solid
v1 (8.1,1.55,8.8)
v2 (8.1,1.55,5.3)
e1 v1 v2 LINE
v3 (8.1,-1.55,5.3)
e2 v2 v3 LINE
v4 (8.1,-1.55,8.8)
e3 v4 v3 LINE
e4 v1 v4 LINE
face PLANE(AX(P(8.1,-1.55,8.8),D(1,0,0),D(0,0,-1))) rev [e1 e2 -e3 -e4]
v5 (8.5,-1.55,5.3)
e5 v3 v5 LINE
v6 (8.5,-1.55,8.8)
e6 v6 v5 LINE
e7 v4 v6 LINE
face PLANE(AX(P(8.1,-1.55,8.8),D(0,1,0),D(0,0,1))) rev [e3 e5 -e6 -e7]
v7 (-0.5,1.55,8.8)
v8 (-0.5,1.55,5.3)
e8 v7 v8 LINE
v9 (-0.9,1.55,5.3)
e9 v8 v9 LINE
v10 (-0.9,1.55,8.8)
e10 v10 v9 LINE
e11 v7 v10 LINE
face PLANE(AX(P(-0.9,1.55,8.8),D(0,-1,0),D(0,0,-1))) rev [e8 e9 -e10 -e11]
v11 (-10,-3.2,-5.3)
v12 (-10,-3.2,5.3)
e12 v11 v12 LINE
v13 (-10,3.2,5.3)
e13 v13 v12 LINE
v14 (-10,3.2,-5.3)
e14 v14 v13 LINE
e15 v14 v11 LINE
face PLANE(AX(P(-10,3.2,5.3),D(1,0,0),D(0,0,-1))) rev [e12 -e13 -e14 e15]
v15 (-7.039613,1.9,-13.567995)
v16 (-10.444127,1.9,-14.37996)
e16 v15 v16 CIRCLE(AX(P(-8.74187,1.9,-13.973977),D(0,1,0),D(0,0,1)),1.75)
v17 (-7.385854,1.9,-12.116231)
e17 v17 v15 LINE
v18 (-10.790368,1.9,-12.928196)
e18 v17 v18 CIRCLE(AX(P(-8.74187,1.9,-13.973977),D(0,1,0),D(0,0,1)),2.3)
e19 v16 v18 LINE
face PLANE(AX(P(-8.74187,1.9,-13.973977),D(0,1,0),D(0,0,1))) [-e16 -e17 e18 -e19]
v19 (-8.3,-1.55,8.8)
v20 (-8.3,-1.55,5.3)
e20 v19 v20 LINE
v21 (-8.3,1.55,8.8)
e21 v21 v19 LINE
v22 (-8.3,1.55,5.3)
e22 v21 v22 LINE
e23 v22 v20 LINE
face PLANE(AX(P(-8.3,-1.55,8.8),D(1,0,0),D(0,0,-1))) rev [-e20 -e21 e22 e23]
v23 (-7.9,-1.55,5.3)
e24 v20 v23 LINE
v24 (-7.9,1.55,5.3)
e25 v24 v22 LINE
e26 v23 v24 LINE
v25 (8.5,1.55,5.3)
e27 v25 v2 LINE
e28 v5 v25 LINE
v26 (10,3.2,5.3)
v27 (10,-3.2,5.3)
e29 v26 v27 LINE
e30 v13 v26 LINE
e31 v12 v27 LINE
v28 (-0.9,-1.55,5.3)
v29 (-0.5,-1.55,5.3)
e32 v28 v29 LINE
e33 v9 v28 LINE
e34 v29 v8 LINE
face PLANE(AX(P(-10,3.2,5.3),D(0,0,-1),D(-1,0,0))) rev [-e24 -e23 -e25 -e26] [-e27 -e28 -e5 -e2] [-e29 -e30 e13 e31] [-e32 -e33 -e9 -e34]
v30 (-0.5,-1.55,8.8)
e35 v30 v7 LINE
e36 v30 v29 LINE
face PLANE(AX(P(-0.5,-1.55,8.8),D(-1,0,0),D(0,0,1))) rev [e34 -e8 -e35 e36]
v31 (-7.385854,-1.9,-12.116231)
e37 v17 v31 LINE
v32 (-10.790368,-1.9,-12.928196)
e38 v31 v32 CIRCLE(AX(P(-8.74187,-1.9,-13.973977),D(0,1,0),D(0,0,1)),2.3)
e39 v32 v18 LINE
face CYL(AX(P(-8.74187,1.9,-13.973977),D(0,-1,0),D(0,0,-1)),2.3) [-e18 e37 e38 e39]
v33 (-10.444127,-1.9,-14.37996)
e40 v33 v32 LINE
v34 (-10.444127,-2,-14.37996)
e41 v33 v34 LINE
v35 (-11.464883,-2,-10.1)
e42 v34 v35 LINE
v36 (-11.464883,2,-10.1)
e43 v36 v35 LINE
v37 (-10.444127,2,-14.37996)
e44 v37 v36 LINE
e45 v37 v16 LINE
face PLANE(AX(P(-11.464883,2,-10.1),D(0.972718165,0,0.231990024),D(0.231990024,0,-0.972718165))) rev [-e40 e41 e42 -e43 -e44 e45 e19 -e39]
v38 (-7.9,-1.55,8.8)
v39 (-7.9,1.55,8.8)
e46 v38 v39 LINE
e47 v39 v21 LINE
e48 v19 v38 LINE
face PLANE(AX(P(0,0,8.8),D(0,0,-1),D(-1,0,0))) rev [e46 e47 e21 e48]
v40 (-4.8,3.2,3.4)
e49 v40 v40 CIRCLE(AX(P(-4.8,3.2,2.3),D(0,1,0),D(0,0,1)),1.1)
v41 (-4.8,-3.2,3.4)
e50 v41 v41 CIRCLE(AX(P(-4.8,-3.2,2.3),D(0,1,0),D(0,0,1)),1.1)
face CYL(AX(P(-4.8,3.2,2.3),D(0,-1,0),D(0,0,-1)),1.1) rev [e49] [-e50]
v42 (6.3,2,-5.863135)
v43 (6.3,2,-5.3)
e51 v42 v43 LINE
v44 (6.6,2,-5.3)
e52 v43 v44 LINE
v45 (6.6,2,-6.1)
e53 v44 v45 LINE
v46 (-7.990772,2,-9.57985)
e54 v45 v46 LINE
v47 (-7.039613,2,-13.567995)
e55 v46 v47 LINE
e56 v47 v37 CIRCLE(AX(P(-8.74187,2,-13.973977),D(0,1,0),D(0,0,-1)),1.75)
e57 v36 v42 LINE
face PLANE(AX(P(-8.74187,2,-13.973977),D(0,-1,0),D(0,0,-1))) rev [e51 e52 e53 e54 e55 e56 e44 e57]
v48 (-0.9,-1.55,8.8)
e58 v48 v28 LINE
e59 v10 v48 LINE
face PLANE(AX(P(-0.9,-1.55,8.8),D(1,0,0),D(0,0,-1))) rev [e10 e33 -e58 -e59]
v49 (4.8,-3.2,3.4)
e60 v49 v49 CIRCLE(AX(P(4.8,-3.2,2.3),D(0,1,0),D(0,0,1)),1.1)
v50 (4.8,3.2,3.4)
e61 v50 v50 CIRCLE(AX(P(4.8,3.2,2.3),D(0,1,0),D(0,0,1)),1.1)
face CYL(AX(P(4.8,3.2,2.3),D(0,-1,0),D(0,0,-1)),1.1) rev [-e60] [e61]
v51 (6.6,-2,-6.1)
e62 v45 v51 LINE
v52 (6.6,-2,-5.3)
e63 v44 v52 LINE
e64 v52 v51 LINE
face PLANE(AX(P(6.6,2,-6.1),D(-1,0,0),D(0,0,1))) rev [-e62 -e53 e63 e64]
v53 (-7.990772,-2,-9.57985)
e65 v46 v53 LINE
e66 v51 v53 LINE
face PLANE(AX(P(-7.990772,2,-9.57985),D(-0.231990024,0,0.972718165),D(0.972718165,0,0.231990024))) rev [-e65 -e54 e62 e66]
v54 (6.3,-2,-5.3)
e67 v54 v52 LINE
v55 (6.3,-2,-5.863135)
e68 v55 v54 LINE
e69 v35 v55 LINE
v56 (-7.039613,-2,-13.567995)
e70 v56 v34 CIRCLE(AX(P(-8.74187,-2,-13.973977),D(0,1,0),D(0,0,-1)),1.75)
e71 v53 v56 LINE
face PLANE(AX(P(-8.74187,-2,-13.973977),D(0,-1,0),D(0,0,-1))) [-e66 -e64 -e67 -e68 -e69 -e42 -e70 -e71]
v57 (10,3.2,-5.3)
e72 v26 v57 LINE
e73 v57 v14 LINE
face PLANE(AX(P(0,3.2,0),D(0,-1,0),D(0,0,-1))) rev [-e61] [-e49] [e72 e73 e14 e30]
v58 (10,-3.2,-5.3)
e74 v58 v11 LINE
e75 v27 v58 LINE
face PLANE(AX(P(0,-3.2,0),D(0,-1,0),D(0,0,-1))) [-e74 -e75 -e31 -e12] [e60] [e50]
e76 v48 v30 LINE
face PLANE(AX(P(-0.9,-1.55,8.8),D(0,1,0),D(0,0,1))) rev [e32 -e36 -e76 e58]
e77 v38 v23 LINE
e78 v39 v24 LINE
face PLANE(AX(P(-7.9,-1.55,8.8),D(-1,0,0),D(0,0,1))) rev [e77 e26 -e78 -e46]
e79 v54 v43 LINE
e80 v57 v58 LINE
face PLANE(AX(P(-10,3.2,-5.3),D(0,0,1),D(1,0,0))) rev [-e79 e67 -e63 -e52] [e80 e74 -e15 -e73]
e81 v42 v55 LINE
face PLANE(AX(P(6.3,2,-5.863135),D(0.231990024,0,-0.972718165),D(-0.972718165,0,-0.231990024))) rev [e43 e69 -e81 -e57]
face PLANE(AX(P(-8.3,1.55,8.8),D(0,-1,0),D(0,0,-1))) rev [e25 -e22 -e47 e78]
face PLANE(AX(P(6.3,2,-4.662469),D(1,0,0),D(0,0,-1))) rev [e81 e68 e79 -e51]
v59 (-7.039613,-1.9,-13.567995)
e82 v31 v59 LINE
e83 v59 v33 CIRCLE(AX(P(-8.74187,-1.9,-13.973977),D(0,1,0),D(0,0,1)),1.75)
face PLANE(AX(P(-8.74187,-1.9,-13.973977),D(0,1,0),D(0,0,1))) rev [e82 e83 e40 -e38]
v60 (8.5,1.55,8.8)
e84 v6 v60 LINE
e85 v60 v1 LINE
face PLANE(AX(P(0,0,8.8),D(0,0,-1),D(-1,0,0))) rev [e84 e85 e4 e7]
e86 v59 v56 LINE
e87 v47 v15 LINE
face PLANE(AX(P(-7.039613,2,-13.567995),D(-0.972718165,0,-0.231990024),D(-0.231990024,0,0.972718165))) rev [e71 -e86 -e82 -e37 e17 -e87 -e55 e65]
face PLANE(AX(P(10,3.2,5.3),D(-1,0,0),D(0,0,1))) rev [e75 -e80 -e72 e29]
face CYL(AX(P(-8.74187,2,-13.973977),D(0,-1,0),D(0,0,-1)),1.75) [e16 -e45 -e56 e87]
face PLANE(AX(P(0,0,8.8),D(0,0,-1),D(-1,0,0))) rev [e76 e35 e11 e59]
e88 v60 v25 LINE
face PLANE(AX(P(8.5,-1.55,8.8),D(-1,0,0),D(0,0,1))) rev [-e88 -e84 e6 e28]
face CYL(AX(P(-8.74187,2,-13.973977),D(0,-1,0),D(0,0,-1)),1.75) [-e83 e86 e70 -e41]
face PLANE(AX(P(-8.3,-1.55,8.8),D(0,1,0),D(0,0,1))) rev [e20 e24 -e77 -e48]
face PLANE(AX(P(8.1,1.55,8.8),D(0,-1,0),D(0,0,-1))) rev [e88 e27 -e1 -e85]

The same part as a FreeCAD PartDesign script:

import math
import FreeCAD as App
import Part
import Sketcher

V = App.Vector
Q = App.Units.Quantity

doc = App.newDocument("Part")
params = doc.addObject("Spreadsheet::Sheet", "Params")
for row, (alias, value) in enumerate([
    ("sketch1_diameter", "2.2 mm"),
    ("sketch1_width", "20 mm"),
    ("sketch1_height", "10.6 mm"),
    ("pad1_length", "6.4 mm"),
    ("sketch2_width", "0.4 mm"),
    ("sketch2_height", "3.1 mm"),
    ("pad2_length", "3.5 mm"),
    ("sketch3_radius", "1.75 mm"),
    ("sketch3_length", "15 mm"),
    ("sketch3_width", "0.3 mm"),
    ("sketch3_length2", "4.1 mm"),
    ("sketch3_length3", "4.4 mm"),
    ("pad3_length", "4 mm"),
    ("sketch4_diameter", "4.6 mm"),
    ("pad4_length", "3.8 mm"),
], start=1):
    params.set(f"A{row}", alias)
    params.set(f"B{row}", "=" + value)
    params.setAlias(f"B{row}", alias)

body = doc.addObject("PartDesign::Body", "Body")

sketch1 = body.newObject("Sketcher::SketchObject", "Sketch")
sketch1.AttachmentSupport = (doc.getObject("XZ_Plane"), [""])
sketch1.MapMode = "FlatFace"
sketch1.addGeometry([
    Part.LineSegment(V(-10, -5.3, 0), V(-10, 5.3, 0)),
    Part.LineSegment(V(-10, 5.3, 0), V(10, 5.3, 0)),
    Part.LineSegment(V(10, 5.3, 0), V(10, -5.3, 0)),
    Part.LineSegment(V(10, -5.3, 0), V(-10, -5.3, 0)),
    Part.Circle(V(-4.8, 2.3, 0), V(0, 0, 1), 1.1),
    Part.Circle(V(4.8, 2.3, 0), V(0, 0, 1), 1.1),
], False)
sketch1.addConstraint([
    Sketcher.Constraint("Coincident", 0, 2, 1, 1),
    Sketcher.Constraint("Coincident", 1, 2, 2, 1),
    Sketcher.Constraint("Coincident", 2, 2, 3, 1),
    Sketcher.Constraint("Coincident", 3, 2, 0, 1),
    Sketcher.Constraint("Vertical", 0),
    Sketcher.Constraint("Horizontal", 1),
    Sketcher.Constraint("Vertical", 2),
    Sketcher.Constraint("Horizontal", 3),
    Sketcher.Constraint("Equal", 4, 5),
    Sketcher.Constraint("Symmetric", 0, 2, 2, 2, -1, 1),
    Sketcher.Constraint("Symmetric", 4, 3, 5, 3, -2),
    Sketcher.Constraint("Diameter", 4, Q("2.2 mm")),
    Sketcher.Constraint("DistanceX", 1, 1, 1, 2, Q("20 mm")),
    Sketcher.Constraint("DistanceY", 0, 1, 0, 2, Q("10.6 mm")),
    Sketcher.Constraint("DistanceY", 4, 3, 0, 2, Q("3 mm")),
    Sketcher.Constraint("DistanceX", 4, 3, -1, 1, Q("4.8 mm")),
])
sketch1.setExpression("Constraints[11]", "Params.sketch1_diameter")
sketch1.setExpression("Constraints[12]", "Params.sketch1_width")
sketch1.setExpression("Constraints[13]", "Params.sketch1_height")
pad1 = body.newObject("PartDesign::Pad", "Pad")
pad1.Profile = sketch1
pad1.setExpression("Length", "Params.pad1_length")
pad1.Midplane = True

sketch2 = body.newObject("Sketcher::SketchObject", "Sketch001")
sketch2.AttachmentSupport = (doc.getObject("XY_Plane"), [""])
sketch2.MapMode = "FlatFace"
sketch2.AttachmentOffset = App.Placement(V(0, 0, 5.3), App.Rotation())
sketch2.addGeometry([
    Part.LineSegment(V(-8.3, 1.55, 0), V(-8.3, -1.55, 0)),
    Part.LineSegment(V(-8.3, -1.55, 0), V(-7.9, -1.55, 0)),
    Part.LineSegment(V(-7.9, -1.55, 0), V(-7.9, 1.55, 0)),
    Part.LineSegment(V(-7.9, 1.55, 0), V(-8.3, 1.55, 0)),
    Part.LineSegment(V(-0.9, 1.55, 0), V(-0.9, -1.55, 0)),
    Part.LineSegment(V(-0.9, -1.55, 0), V(-0.5, -1.55, 0)),
    Part.LineSegment(V(-0.5, -1.55, 0), V(-0.5, 1.55, 0)),
    Part.LineSegment(V(-0.5, 1.55, 0), V(-0.9, 1.55, 0)),
    Part.LineSegment(V(8.1, 1.55, 0), V(8.1, -1.55, 0)),
    Part.LineSegment(V(8.1, -1.55, 0), V(8.5, -1.55, 0)),
    Part.LineSegment(V(8.5, -1.55, 0), V(8.5, 1.55, 0)),
    Part.LineSegment(V(8.5, 1.55, 0), V(8.1, 1.55, 0)),
], False)
sketch2.addConstraint([
    Sketcher.Constraint("Coincident", 0, 2, 1, 1),
    Sketcher.Constraint("Coincident", 1, 2, 2, 1),
    Sketcher.Constraint("Coincident", 2, 2, 3, 1),
    Sketcher.Constraint("Coincident", 3, 2, 0, 1),
    Sketcher.Constraint("Coincident", 4, 2, 5, 1),
    Sketcher.Constraint("Coincident", 5, 2, 6, 1),
    Sketcher.Constraint("Coincident", 6, 2, 7, 1),
    Sketcher.Constraint("Coincident", 7, 2, 4, 1),
    Sketcher.Constraint("Coincident", 8, 2, 9, 1),
    Sketcher.Constraint("Coincident", 9, 2, 10, 1),
    Sketcher.Constraint("Coincident", 10, 2, 11, 1),
    Sketcher.Constraint("Coincident", 11, 2, 8, 1),
    Sketcher.Constraint("Vertical", 0),
    Sketcher.Constraint("Horizontal", 1),
    Sketcher.Constraint("Vertical", 2),
    Sketcher.Constraint("Horizontal", 3),
    Sketcher.Constraint("Vertical", 4),
    Sketcher.Constraint("Horizontal", 5),
    Sketcher.Constraint("Vertical", 6),
    Sketcher.Constraint("Horizontal", 7),
    Sketcher.Constraint("Vertical", 8),
    Sketcher.Constraint("Horizontal", 9),
    Sketcher.Constraint("Vertical", 10),
    Sketcher.Constraint("Horizontal", 11),
    Sketcher.Constraint("Horizontal", 1, 2, 4, 2),
    Sketcher.Constraint("Horizontal", 3, 2, 6, 2),
    Sketcher.Constraint("Horizontal", 5, 2, 8, 2),
    Sketcher.Constraint("Horizontal", 7, 2, 10, 2),
    Sketcher.Constraint("Equal", 3, 5),
    Sketcher.Constraint("Equal", 7, 9),
    Sketcher.Constraint("DistanceX", 1, 1, 1, 2, Q("0.4 mm")),
    Sketcher.Constraint("DistanceY", 0, 2, 0, 1, Q("3.1 mm")),
    Sketcher.Constraint("DistanceX", 1, 2, 4, 2, Q("7 mm")),
    Sketcher.Constraint("DistanceX", 4, 2, 8, 2, Q("9 mm")),
    Sketcher.Constraint("DistanceX", 0, 2, -1, 1, Q("8.3 mm")),
    Sketcher.Constraint("DistanceY", 0, 2, -1, 1, Q("1.55 mm")),
])
sketch2.setExpression("Constraints[30]", "Params.sketch2_width")
sketch2.setExpression("Constraints[31]", "Params.sketch2_height")
pad2 = body.newObject("PartDesign::Pad", "Pad001")
pad2.Profile = sketch2
pad2.setExpression("Length", "Params.pad2_length")

sketch3 = body.newObject("Sketcher::SketchObject", "Sketch002")
sketch3.AttachmentSupport = (doc.getObject("XZ_Plane"), [""])
sketch3.MapMode = "FlatFace"
sketch3.addGeometry([
    Part.LineSegment(V(6.3, -5.86, 0), V(6.3, -4.66, 0)),
    Part.LineSegment(V(6.3, -4.66, 0), V(6.6, -4.66, 0)),
    Part.LineSegment(V(6.6, -4.66, 0), V(6.6, -6.1, 0)),
    Part.LineSegment(V(6.6, -6.1, 0), V(-7.99, -9.58, 0)),
    Part.LineSegment(V(-7.99, -9.58, 0), V(-7.04, -13.57, 0)),
    Part.ArcOfCircle(Part.Circle(V(-8.74, -13.97, 0), V(0, 0, 1), 1.75), math.radians(-167), math.radians(13)),
    Part.LineSegment(V(-10.44, -14.38, 0), V(-11.46, -10.1, 0)),
    Part.LineSegment(V(-11.46, -10.1, 0), V(6.3, -5.86, 0)),
], False)
sketch3.addConstraint([
    Sketcher.Constraint("Coincident", 0, 2, 1, 1),
    Sketcher.Constraint("Coincident", 1, 2, 2, 1),
    Sketcher.Constraint("Coincident", 2, 2, 3, 1),
    Sketcher.Constraint("Coincident", 3, 2, 4, 1),
    Sketcher.Constraint("Tangent", 4, 2, 5, 2),
    Sketcher.Constraint("Tangent", 5, 1, 6, 1),
    Sketcher.Constraint("Coincident", 6, 2, 7, 1),
    Sketcher.Constraint("Coincident", 7, 2, 0, 1),
    Sketcher.Constraint("Vertical", 0),
    Sketcher.Constraint("Horizontal", 1),
    Sketcher.Constraint("Vertical", 2),
    Sketcher.Constraint("Perpendicular", 3, 4),
    Sketcher.Constraint("Parallel", 4, 6),
    Sketcher.Constraint("Perpendicular", 6, 7),
    Sketcher.Constraint("Radius", 5, Q("1.75 mm")),
    Sketcher.Constraint("Distance", 3, Q("15 mm")),
    Sketcher.Constraint("DistanceX", 1, 1, 1, 2, Q("0.3 mm")),
    Sketcher.Constraint("DistanceY", 6, 2, 2, 2, Q("4 mm")),
    Sketcher.Constraint("Distance", 4, Q("4.1 mm")),
    Sketcher.Constraint("Distance", 6, Q("4.4 mm")),
    Sketcher.Constraint("DistanceX", -1, 1, 0, 2, Q("6.3 mm")),
    Sketcher.Constraint("DistanceY", 2, 2, -1, 1, Q("6.1 mm")),
    Sketcher.Constraint("DistanceY", 2, 2, 2, 1, Q("1.437531 mm")),
])
sketch3.setExpression("Constraints[14]", "Params.sketch3_radius")
sketch3.setExpression("Constraints[15]", "Params.sketch3_length")
sketch3.setExpression("Constraints[16]", "Params.sketch3_width")
sketch3.setExpression("Constraints[18]", "Params.sketch3_length2")
sketch3.setExpression("Constraints[19]", "Params.sketch3_length3")
pad3 = body.newObject("PartDesign::Pad", "Pad002")
pad3.Profile = sketch3
pad3.setExpression("Length", "Params.pad3_length")
pad3.Midplane = True

sketch4 = body.newObject("Sketcher::SketchObject", "Sketch003")
sketch4.AttachmentSupport = (doc.getObject("XZ_Plane"), [""])
sketch4.MapMode = "FlatFace"
sketch4.addGeometry(Part.Circle(V(-8.7, -14, 0), V(0, 0, 1), 2.3), False)
sketch4.addConstraint([
    Sketcher.Constraint("Diameter", 0, Q("4.6 mm")),
    Sketcher.Constraint("DistanceX", 0, 3, -1, 1, Q("8.74187 mm")),
    Sketcher.Constraint("DistanceY", 0, 3, -1, 1, Q("13.973977 mm")),
])
sketch4.setExpression("Constraints[0]", "Params.sketch4_diameter")
pad4 = body.newObject("PartDesign::Pad", "Pad003")
pad4.Profile = sketch4
pad4.setExpression("Length", "Params.pad4_length")
pad4.Midplane = True

doc.recompute()
